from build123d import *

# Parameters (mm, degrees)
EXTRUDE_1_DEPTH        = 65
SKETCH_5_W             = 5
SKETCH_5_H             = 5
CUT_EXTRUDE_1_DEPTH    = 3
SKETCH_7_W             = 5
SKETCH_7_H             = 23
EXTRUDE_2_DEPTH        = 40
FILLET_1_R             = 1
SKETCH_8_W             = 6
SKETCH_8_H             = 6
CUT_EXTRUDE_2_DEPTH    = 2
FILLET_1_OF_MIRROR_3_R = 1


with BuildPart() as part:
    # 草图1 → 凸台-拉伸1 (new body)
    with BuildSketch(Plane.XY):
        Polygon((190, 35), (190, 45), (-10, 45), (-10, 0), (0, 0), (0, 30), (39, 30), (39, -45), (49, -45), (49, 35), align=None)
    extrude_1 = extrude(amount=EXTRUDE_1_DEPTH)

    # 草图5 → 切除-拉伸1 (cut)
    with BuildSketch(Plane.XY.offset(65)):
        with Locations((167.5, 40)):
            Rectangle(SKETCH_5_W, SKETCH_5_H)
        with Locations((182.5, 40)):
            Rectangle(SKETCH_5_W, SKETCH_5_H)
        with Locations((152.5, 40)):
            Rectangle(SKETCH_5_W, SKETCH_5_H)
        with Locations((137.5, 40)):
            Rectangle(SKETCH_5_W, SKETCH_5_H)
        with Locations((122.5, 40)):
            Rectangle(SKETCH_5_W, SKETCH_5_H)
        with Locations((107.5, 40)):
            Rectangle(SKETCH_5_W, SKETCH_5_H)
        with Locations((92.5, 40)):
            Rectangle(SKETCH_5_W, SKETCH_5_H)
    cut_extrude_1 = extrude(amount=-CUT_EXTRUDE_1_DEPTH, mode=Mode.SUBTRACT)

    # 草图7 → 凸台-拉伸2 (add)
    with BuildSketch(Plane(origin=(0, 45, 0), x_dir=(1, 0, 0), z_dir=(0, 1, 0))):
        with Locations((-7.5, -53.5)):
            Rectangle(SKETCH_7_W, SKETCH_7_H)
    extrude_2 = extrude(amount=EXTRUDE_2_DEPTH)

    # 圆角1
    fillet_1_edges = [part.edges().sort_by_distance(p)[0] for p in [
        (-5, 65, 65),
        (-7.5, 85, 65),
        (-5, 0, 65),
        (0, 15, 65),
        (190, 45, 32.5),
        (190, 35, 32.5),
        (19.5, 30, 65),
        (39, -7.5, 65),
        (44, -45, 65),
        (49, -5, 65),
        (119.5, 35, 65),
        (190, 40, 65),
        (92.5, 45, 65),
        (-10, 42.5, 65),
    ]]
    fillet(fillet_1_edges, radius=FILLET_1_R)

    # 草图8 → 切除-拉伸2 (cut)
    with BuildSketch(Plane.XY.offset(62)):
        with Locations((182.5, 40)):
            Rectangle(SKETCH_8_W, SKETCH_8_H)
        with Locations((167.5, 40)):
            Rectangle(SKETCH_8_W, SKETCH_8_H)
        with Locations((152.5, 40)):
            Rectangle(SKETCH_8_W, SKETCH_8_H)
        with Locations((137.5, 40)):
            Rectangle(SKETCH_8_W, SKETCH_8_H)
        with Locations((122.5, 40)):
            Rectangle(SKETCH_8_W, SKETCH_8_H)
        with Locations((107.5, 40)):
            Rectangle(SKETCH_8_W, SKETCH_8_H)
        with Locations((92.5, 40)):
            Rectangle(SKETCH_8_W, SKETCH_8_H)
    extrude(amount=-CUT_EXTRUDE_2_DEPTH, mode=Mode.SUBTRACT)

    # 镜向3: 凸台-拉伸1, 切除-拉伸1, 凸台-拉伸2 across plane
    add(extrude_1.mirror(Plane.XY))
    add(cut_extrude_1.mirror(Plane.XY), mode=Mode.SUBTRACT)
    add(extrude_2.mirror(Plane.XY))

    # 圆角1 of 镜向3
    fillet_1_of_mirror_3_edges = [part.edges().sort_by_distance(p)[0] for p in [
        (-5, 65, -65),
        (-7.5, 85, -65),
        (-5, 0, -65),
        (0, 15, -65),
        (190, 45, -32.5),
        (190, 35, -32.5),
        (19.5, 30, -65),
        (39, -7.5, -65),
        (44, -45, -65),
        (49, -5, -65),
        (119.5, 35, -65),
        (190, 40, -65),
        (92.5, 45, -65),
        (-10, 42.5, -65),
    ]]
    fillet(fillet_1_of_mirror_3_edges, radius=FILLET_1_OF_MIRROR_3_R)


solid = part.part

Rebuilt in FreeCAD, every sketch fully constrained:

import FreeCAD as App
import Part
import Sketcher

V = App.Vector


def edges_at(feature, points):
    """Names of the edges that pass closest to the given points."""
    edges = feature.Shape.Edges
    near = lambda p: min(range(len(edges)), key=lambda i: edges[i].distToShape(Part.Vertex(*p))[0])
    return sorted({f"Edge{near(p) + 1}" for p in points})


def add_polygon(sketch, points):
    """Adds a closed chain of lines whose ends are joined by coincident constraints."""
    first, n = sketch.GeometryCount, len(points)
    for a, b in zip(points, points[1:] + points[:1]):
        sketch.addGeometry(Part.LineSegment(App.Vector(*a, 0), App.Vector(*b, 0)), False)
    for i in range(n):
        sketch.addConstraint(Sketcher.Constraint("Coincident", first + i, 2, first + (i + 1) % n, 1))

doc = App.newDocument("Part")
body = doc.addObject("PartDesign::Body", "Body")

# Sketch on XY plane
sketch1 = body.newObject("Sketcher::SketchObject", "Sketch")
sketch1.AttachmentSupport = (doc.getObject("XY_Plane"), [""])
sketch1.MapMode = "FlatFace"
add_polygon(sketch1, [(190, 35), (190, 45), (-10, 45), (-10, 0), (0, 0), (0, 30), (39, 30), (39, -45), (49, -45), (49, 35)])  # lines 0-9
sketch1.addConstraint(Sketcher.Constraint("Vertical", 0))
sketch1.addConstraint(Sketcher.Constraint("Horizontal", 1))
sketch1.addConstraint(Sketcher.Constraint("Vertical", 2))
sketch1.addConstraint(Sketcher.Constraint("Horizontal", 3))
sketch1.addConstraint(Sketcher.Constraint("Vertical", 4))
sketch1.addConstraint(Sketcher.Constraint("Horizontal", 5))
sketch1.addConstraint(Sketcher.Constraint("Vertical", 6))
sketch1.addConstraint(Sketcher.Constraint("Horizontal", 7))
sketch1.addConstraint(Sketcher.Constraint("Vertical", 8))
sketch1.addConstraint(Sketcher.Constraint("Horizontal", 9))
sketch1.addConstraint(Sketcher.Constraint("Coincident", 3, 2, -1, 1))
sketch1.addConstraint(Sketcher.Constraint("Equal", 3, 7))
sketch1.addConstraint(Sketcher.Constraint("Equal", 7, 0))
sketch1.addConstraint(Sketcher.Constraint("DistanceX", 1, 2, 1, 1, 200.0))
sketch1.addConstraint(Sketcher.Constraint("DistanceX", 3, 1, 3, 2, 10.0))
sketch1.addConstraint(Sketcher.Constraint("DistanceX", 5, 1, 5, 2, 39.0))
sketch1.addConstraint(Sketcher.Constraint("DistanceY", 2, 2, 2, 1, 45.0))
sketch1.addConstraint(Sketcher.Constraint("DistanceY", 4, 1, 4, 2, 30.0))
sketch1.addConstraint(Sketcher.Constraint("DistanceY", 6, 2, 6, 1, 75.0))
pad1 = body.newObject("PartDesign::Pad", "Pad")
pad1.Profile = sketch1
pad1.Length = 65

# Sketch on XY plane
sketch2 = body.newObject("Sketcher::SketchObject", "Sketch001")
sketch2.AttachmentSupport = (doc.getObject("XY_Plane"), [""])
sketch2.MapMode = "FlatFace"
sketch2.AttachmentOffset = App.Placement(V(0, 0, 65), App.Rotation())
add_polygon(sketch2, [(165, 42), (165, 38), (170, 38), (170, 42)])  # lines 0-3
add_polygon(sketch2, [(180, 42), (180, 38), (185, 38), (185, 42)])  # lines 4-7
add_polygon(sketch2, [(150, 42), (150, 38), (155, 38), (155, 42)])  # lines 8-11
add_polygon(sketch2, [(135, 42), (135, 38), (140, 38), (140, 42)])  # lines 12-15
add_polygon(sketch2, [(120, 42), (120, 38), (125, 38), (125, 42)])  # lines 16-19
add_polygon(sketch2, [(105, 42), (105, 38), (110, 38), (110, 42)])  # lines 20-23
add_polygon(sketch2, [(90, 42), (90, 38), (95, 38), (95, 42)])  # lines 24-27
sketch2.addConstraint(Sketcher.Constraint("Vertical", 0))
sketch2.addConstraint(Sketcher.Constraint("Horizontal", 1))
sketch2.addConstraint(Sketcher.Constraint("Vertical", 2))
sketch2.addConstraint(Sketcher.Constraint("Horizontal", 3))
sketch2.addConstraint(Sketcher.Constraint("Vertical", 4))
sketch2.addConstraint(Sketcher.Constraint("Horizontal", 5))
sketch2.addConstraint(Sketcher.Constraint("Vertical", 6))
sketch2.addConstraint(Sketcher.Constraint("Horizontal", 7))
sketch2.addConstraint(Sketcher.Constraint("Vertical", 8))
sketch2.addConstraint(Sketcher.Constraint("Horizontal", 9))
sketch2.addConstraint(Sketcher.Constraint("Vertical", 10))
sketch2.addConstraint(Sketcher.Constraint("Horizontal", 11))
sketch2.addConstraint(Sketcher.Constraint("Vertical", 12))
sketch2.addConstraint(Sketcher.Constraint("Horizontal", 13))
sketch2.addConstraint(Sketcher.Constraint("Vertical", 14))
sketch2.addConstraint(Sketcher.Constraint("Horizontal", 15))
sketch2.addConstraint(Sketcher.Constraint("Vertical", 16))
sketch2.addConstraint(Sketcher.Constraint("Horizontal", 17))
sketch2.addConstraint(Sketcher.Constraint("Vertical", 18))
sketch2.addConstraint(Sketcher.Constraint("Horizontal", 19))
sketch2.addConstraint(Sketcher.Constraint("Vertical", 20))
sketch2.addConstraint(Sketcher.Constraint("Horizontal", 21))
sketch2.addConstraint(Sketcher.Constraint("Vertical", 22))
sketch2.addConstraint(Sketcher.Constraint("Horizontal", 23))
sketch2.addConstraint(Sketcher.Constraint("Vertical", 24))
sketch2.addConstraint(Sketcher.Constraint("Horizontal", 25))
sketch2.addConstraint(Sketcher.Constraint("Vertical", 26))
sketch2.addConstraint(Sketcher.Constraint("Horizontal", 27))
sketch2.addConstraint(Sketcher.Constraint("Horizontal", 1, 2, 4, 2))
sketch2.addConstraint(Sketcher.Constraint("Horizontal", 3, 2, 6, 2))
sketch2.addConstraint(Sketcher.Constraint("Horizontal", 5, 2, 8, 2))
sketch2.addConstraint(Sketcher.Constraint("Horizontal", 7, 2, 10, 2))
sketch2.addConstraint(Sketcher.Constraint("Horizontal", 9, 2, 12, 2))
sketch2.addConstraint(Sketcher.Constraint("Horizontal", 11, 2, 14, 2))
sketch2.addConstraint(Sketcher.Constraint("Horizontal", 13, 2, 16, 2))
sketch2.addConstraint(Sketcher.Constraint("Horizontal", 15, 2, 18, 2))
sketch2.addConstraint(Sketcher.Constraint("Horizontal", 17, 2, 20, 2))
sketch2.addConstraint(Sketcher.Constraint("Horizontal", 19, 2, 22, 2))
sketch2.addConstraint(Sketcher.Constraint("Horizontal", 21, 2, 24, 2))
sketch2.addConstraint(Sketcher.Constraint("Horizontal", 23, 2, 26, 2))
sketch2.addConstraint(Sketcher.Constraint("Equal", 3, 5))
sketch2.addConstraint(Sketcher.Constraint("Equal", 7, 9))
sketch2.addConstraint(Sketcher.Constraint("Equal", 11, 13))
sketch2.addConstraint(Sketcher.Constraint("Equal", 15, 17))
sketch2.addConstraint(Sketcher.Constraint("Equal", 19, 21))
sketch2.addConstraint(Sketcher.Constraint("Equal", 23, 25))
sketch2.addConstraint(Sketcher.Constraint("Equal", 27, 0))
sketch2.addConstraint(Sketcher.Constraint("DistanceX", 1, 1, 1, 2, 5.0))
sketch2.addConstraint(Sketcher.Constraint("DistanceX", -1, 1, 0, 2, 165.0))
sketch2.addConstraint(Sketcher.Constraint("DistanceX", -1, 1, 4, 2, 180.0))
sketch2.addConstraint(Sketcher.Constraint("DistanceX", -1, 1, 8, 2, 150.0))
sketch2.addConstraint(Sketcher.Constraint("DistanceX", -1, 1, 12, 2, 135.0))
sketch2.addConstraint(Sketcher.Constraint("DistanceX", -1, 1, 16, 2, 120.0))
sketch2.addConstraint(Sketcher.Constraint("DistanceX", -1, 1, 20, 2, 105.0))
sketch2.addConstraint(Sketcher.Constraint("DistanceX", -1, 1, 24, 2, 90.0))
sketch2.addConstraint(Sketcher.Constraint("DistanceY", -1, 1, 0, 2, 37.5))
pocket1 = body.newObject("PartDesign::Pocket", "Pocket")
pocket1.Profile = sketch2
pocket1.Length = 3

# Sketch on XZ plane
sketch3 = body.newObject("Sketcher::SketchObject", "Sketch002")
sketch3.AttachmentSupport = (doc.getObject("XZ_Plane"), [""])
sketch3.MapMode = "FlatFace"
sketch3.AttachmentOffset = App.Placement(V(0, 0, -45), App.Rotation())
add_polygon(sketch3, [(-10, 42), (-10, 65), (-5, 65), (-5, 42)])  # lines 0-3
sketch3.addConstraint(Sketcher.Constraint("Vertical", 0))
sketch3.addConstraint(Sketcher.Constraint("Horizontal", 1))
sketch3.addConstraint(Sketcher.Constraint("Vertical", 2))
sketch3.addConstraint(Sketcher.Constraint("Horizontal", 3))
sketch3.addConstraint(Sketcher.Constraint("DistanceX", 1, 1, 1, 2, 5.0))
sketch3.addConstraint(Sketcher.Constraint("DistanceY", 0, 1, 0, 2, 23.0))
sketch3.addConstraint(Sketcher.Constraint("DistanceX", 0, 2, -1, 1, 10.0))
sketch3.addConstraint(Sketcher.Constraint("DistanceY", -1, 1, 0, 2, 65.0))
pad2 = body.newObject("PartDesign::Pad", "Pad001")
pad2.Profile = sketch3
pad2.Length = 40
pad2.Reversed = True
doc.recompute()

fillet = body.newObject("PartDesign::Fillet", "Fillet")
fillet.Base = (pad2, edges_at(pad2, [
    (-5, 65, 65),
    (-7.5, 85, 65),
    (-5, 0, 65),
    (0, 15, 65),
    (190, 45, 32.5),
    (190, 35, 32.5),
    (19.5, 30, 65),
    (39, -7.5, 65),
    (44, -45, 65),
    (49, -5, 65),
    (119.5, 35, 65),
    (190, 40, 65),
    (92.5, 45, 65),
    (-10, 42.5, 65),
]))
fillet.Radius = 1

# Sketch on XY plane
sketch4 = body.newObject("Sketcher::SketchObject", "Sketch003")
sketch4.AttachmentSupport = (doc.getObject("XY_Plane"), [""])
sketch4.MapMode = "FlatFace"
sketch4.AttachmentOffset = App.Placement(V(0, 0, 62), App.Rotation())
add_polygon(sketch4, [(180, 43), (180, 37), (186, 37), (186, 43)])  # lines 0-3
add_polygon(sketch4, [(164, 43), (164, 37), (170, 37), (170, 43)])  # lines 4-7
add_polygon(sketch4, [(150, 43), (150, 37), (156, 37), (156, 43)])  # lines 8-11
add_polygon(sketch4, [(134, 43), (134, 37), (140, 37), (140, 43)])  # lines 12-15
add_polygon(sketch4, [(120, 43), (120, 37), (126, 37), (126, 43)])  # lines 16-19
add_polygon(sketch4, [(104, 43), (104, 37), (110, 37), (110, 43)])  # lines 20-23
add_polygon(sketch4, [(90, 43), (90, 37), (96, 37), (96, 43)])  # lines 24-27
sketch4.addConstraint(Sketcher.Constraint("Vertical", 0))
sketch4.addConstraint(Sketcher.Constraint("Horizontal", 1))
sketch4.addConstraint(Sketcher.Constraint("Vertical", 2))
sketch4.addConstraint(Sketcher.Constraint("Horizontal", 3))
sketch4.addConstraint(Sketcher.Constraint("Vertical", 4))
sketch4.addConstraint(Sketcher.Constraint("Horizontal", 5))
sketch4.addConstraint(Sketcher.Constraint("Vertical", 6))
sketch4.addConstraint(Sketcher.Constraint("Horizontal", 7))
sketch4.addConstraint(Sketcher.Constraint("Vertical", 8))
sketch4.addConstraint(Sketcher.Constraint("Horizontal", 9))
sketch4.addConstraint(Sketcher.Constraint("Vertical", 10))
sketch4.addConstraint(Sketcher.Constraint("Horizontal", 11))
sketch4.addConstraint(Sketcher.Constraint("Vertical", 12))
sketch4.addConstraint(Sketcher.Constraint("Horizontal", 13))
sketch4.addConstraint(Sketcher.Constraint("Vertical", 14))
sketch4.addConstraint(Sketcher.Constraint("Horizontal", 15))
sketch4.addConstraint(Sketcher.Constraint("Vertical", 16))
sketch4.addConstraint(Sketcher.Constraint("Horizontal", 17))
sketch4.addConstraint(Sketcher.Constraint("Vertical", 18))
sketch4.addConstraint(Sketcher.Constraint("Horizontal", 19))
sketch4.addConstraint(Sketcher.Constraint("Vertical", 20))
sketch4.addConstraint(Sketcher.Constraint("Horizontal", 21))
sketch4.addConstraint(Sketcher.Constraint("Vertical", 22))
sketch4.addConstraint(Sketcher.Constraint("Horizontal", 23))
sketch4.addConstraint(Sketcher.Constraint("Vertical", 24))
sketch4.addConstraint(Sketcher.Constraint("Horizontal", 25))
sketch4.addConstraint(Sketcher.Constraint("Vertical", 26))
sketch4.addConstraint(Sketcher.Constraint("Horizontal", 27))
sketch4.addConstraint(Sketcher.Constraint("Horizontal", 1, 2, 4, 2))
sketch4.addConstraint(Sketcher.Constraint("Horizontal", 3, 2, 6, 2))
sketch4.addConstraint(Sketcher.Constraint("Horizontal", 5, 2, 8, 2))
sketch4.addConstraint(Sketcher.Constraint("Horizontal", 7, 2, 10, 2))
sketch4.addConstraint(Sketcher.Constraint("Horizontal", 9, 2, 12, 2))
sketch4.addConstraint(Sketcher.Constraint("Horizontal", 11, 2, 14, 2))
sketch4.addConstraint(Sketcher.Constraint("Horizontal", 13, 2, 16, 2))
sketch4.addConstraint(Sketcher.Constraint("Horizontal", 15, 2, 18, 2))
sketch4.addConstraint(Sketcher.Constraint("Horizontal", 17, 2, 20, 2))
sketch4.addConstraint(Sketcher.Constraint("Horizontal", 19, 2, 22, 2))
sketch4.addConstraint(Sketcher.Constraint("Horizontal", 21, 2, 24, 2))
sketch4.addConstraint(Sketcher.Constraint("Horizontal", 23, 2, 26, 2))
sketch4.addConstraint(Sketcher.Constraint("Equal", 3, 5))
sketch4.addConstraint(Sketcher.Constraint("Equal", 7, 9))
sketch4.addConstraint(Sketcher.Constraint("Equal", 11, 13))
sketch4.addConstraint(Sketcher.Constraint("Equal", 15, 17))
sketch4.addConstraint(Sketcher.Constraint("Equal", 19, 21))
sketch4.addConstraint(Sketcher.Constraint("Equal", 23, 25))
sketch4.addConstraint(Sketcher.Constraint("Equal", 27, 0))
sketch4.addConstraint(Sketcher.Constraint("DistanceX", 1, 1, 1, 2, 6.0))
sketch4.addConstraint(Sketcher.Constraint("DistanceY", -1, 1, 0, 2, 37.0))
sketch4.addConstraint(Sketcher.Constraint("DistanceX", 4, 2, 0, 2, 15.0))
sketch4.addConstraint(Sketcher.Constraint("DistanceX", 8, 2, 4, 2, 15.0))
sketch4.addConstraint(Sketcher.Constraint("DistanceX", 12, 2, 8, 2, 15.0))
sketch4.addConstraint(Sketcher.Constraint("DistanceX", 16, 2, 12, 2, 15.0))
sketch4.addConstraint(Sketcher.Constraint("DistanceX", 20, 2, 16, 2, 15.0))
sketch4.addConstraint(Sketcher.Constraint("DistanceX", 24, 2, 20, 2, 15.0))
sketch4.addConstraint(Sketcher.Constraint("DistanceX", -1, 1, 0, 2, 179.5))
pocket2 = body.newObject("PartDesign::Pocket", "Pocket001")
pocket2.Profile = sketch4
pocket2.Length = 2
doc.recompute()

mirrored = body.newObject("PartDesign::Mirrored", "Mirrored")
mirrored.Originals = [pad1, pocket1, pad2]
mirrored.MirrorPlane = (doc.getObject("XY_Plane"), [""])
body.Tip = mirrored
doc.recompute()

fillet2 = body.newObject("PartDesign::Fillet", "Fillet001")
fillet2.Base = (mirrored, edges_at(mirrored, [
    (-5, 65, -65),
    (-7.5, 85, -65),
    (-5, 0, -65),
    (0, 15, -65),
    (190, 45, -32.5),
    (190, 35, -32.5),
    (19.5, 30, -65),
    (39, -7.5, -65),
    (44, -45, -65),
    (49, -5, -65),
    (119.5, 35, -65),
    (190, 40, -65),
    (92.5, 45, -65),
    (-10, 42.5, -65),
]))
fillet2.Radius = 1

doc.recompute()
